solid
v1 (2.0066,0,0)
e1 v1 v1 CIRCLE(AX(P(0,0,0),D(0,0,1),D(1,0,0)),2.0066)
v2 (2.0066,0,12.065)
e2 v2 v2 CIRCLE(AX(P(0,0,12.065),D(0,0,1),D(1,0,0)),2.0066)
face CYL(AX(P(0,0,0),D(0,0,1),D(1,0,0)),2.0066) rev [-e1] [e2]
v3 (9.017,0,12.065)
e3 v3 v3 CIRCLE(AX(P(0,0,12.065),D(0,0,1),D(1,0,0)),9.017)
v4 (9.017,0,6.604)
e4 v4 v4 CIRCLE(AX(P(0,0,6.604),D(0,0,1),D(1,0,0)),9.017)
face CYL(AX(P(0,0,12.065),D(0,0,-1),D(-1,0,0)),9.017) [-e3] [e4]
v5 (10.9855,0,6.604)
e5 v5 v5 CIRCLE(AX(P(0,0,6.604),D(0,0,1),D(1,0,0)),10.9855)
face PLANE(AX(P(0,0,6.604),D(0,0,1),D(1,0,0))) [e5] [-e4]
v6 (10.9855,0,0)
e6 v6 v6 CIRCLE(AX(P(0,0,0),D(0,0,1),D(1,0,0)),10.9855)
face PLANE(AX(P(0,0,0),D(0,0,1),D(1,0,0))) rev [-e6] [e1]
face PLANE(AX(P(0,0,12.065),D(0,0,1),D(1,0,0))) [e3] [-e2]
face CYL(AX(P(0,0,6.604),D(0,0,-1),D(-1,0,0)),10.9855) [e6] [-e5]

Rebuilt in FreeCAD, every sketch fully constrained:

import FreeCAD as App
import Part
import Sketcher

V = App.Vector
Q = App.Units.Quantity

doc = App.newDocument("Part")
params = doc.addObject("Spreadsheet::Sheet", "Params")
for row, (alias, value) in enumerate([
    ("sketch1_diameter", "0.865 in"),
    ("pad1_length", "0.26 in"),
    ("sketch2_diameter", "0.71 in"),
    ("pad2_length", "0.215 in"),
    ("sketch3_diameter", "0.158 in"),
], start=1):
    params.set(f"A{row}", alias)
    params.set(f"B{row}", "=" + value)
    params.setAlias(f"B{row}", alias)

body = doc.addObject("PartDesign::Body", "Body")

# Sketch on XY plane
sketch1 = doc.addObject("Sketcher::SketchObject", "Sketch")
body.addObject(sketch1)
sketch1.AttachmentSupport = (doc.XY_Plane, [""])
sketch1.MapMode = "FlatFace"
sketch1.addGeometry(Part.Circle(V(0, 0, 0), V(0, 0, 1), 11), False)
sketch1.addConstraint([
    Sketcher.Constraint("Coincident", 0, 3, -1, 1),
    Sketcher.Constraint("Diameter", 0, Q("0.865 in")),
])
sketch1.setExpression("Constraints[1]", "Params.sketch1_diameter")
pad1 = doc.addObject("PartDesign::Pad", "Pad")
body.addObject(pad1)
pad1.Profile = sketch1
pad1.setExpression("Length", "Params.pad1_length")

# Sketch on XY plane
sketch2 = doc.addObject("Sketcher::SketchObject", "Sketch001")
body.addObject(sketch2)
sketch2.AttachmentSupport = (doc.XY_Plane, [""])
sketch2.MapMode = "FlatFace"
sketch2.AttachmentOffset = App.Placement(V(0, 0, 0.26 * 25.4), App.Rotation())
sketch2.addGeometry(Part.Circle(V(0, 0, 0), V(0, 0, 1), 9), False)
sketch2.addConstraint([
    Sketcher.Constraint("Coincident", 0, 3, -1, 1),
    Sketcher.Constraint("Diameter", 0, Q("0.71 in")),
])
sketch2.setExpression("Constraints[1]", "Params.sketch2_diameter")
pad2 = doc.addObject("PartDesign::Pad", "Pad001")
body.addObject(pad2)
pad2.Profile = sketch2
pad2.setExpression("Length", "Params.pad2_length")

# Sketch on XY plane
sketch3 = doc.addObject("Sketcher::SketchObject", "Sketch002")
body.addObject(sketch3)
sketch3.AttachmentSupport = (doc.XY_Plane, [""])
sketch3.MapMode = "FlatFace"
sketch3.AttachmentOffset = App.Placement(V(0, 0, 0.475 * 25.4), App.Rotation())
sketch3.addGeometry(Part.Circle(V(0, 0, 0), V(0, 0, 1), 2), False)
sketch3.addConstraint([
    Sketcher.Constraint("Coincident", 0, 3, -1, 1),
    Sketcher.Constraint("Diameter", 0, Q("0.158 in")),
])
sketch3.setExpression("Constraints[1]", "Params.sketch3_diameter")
pocket1 = doc.addObject("PartDesign::Pocket", "Pocket")
body.addObject(pocket1)
pocket1.Profile = sketch3
pocket1.Type = "ThroughAll"

doc.recompute()
